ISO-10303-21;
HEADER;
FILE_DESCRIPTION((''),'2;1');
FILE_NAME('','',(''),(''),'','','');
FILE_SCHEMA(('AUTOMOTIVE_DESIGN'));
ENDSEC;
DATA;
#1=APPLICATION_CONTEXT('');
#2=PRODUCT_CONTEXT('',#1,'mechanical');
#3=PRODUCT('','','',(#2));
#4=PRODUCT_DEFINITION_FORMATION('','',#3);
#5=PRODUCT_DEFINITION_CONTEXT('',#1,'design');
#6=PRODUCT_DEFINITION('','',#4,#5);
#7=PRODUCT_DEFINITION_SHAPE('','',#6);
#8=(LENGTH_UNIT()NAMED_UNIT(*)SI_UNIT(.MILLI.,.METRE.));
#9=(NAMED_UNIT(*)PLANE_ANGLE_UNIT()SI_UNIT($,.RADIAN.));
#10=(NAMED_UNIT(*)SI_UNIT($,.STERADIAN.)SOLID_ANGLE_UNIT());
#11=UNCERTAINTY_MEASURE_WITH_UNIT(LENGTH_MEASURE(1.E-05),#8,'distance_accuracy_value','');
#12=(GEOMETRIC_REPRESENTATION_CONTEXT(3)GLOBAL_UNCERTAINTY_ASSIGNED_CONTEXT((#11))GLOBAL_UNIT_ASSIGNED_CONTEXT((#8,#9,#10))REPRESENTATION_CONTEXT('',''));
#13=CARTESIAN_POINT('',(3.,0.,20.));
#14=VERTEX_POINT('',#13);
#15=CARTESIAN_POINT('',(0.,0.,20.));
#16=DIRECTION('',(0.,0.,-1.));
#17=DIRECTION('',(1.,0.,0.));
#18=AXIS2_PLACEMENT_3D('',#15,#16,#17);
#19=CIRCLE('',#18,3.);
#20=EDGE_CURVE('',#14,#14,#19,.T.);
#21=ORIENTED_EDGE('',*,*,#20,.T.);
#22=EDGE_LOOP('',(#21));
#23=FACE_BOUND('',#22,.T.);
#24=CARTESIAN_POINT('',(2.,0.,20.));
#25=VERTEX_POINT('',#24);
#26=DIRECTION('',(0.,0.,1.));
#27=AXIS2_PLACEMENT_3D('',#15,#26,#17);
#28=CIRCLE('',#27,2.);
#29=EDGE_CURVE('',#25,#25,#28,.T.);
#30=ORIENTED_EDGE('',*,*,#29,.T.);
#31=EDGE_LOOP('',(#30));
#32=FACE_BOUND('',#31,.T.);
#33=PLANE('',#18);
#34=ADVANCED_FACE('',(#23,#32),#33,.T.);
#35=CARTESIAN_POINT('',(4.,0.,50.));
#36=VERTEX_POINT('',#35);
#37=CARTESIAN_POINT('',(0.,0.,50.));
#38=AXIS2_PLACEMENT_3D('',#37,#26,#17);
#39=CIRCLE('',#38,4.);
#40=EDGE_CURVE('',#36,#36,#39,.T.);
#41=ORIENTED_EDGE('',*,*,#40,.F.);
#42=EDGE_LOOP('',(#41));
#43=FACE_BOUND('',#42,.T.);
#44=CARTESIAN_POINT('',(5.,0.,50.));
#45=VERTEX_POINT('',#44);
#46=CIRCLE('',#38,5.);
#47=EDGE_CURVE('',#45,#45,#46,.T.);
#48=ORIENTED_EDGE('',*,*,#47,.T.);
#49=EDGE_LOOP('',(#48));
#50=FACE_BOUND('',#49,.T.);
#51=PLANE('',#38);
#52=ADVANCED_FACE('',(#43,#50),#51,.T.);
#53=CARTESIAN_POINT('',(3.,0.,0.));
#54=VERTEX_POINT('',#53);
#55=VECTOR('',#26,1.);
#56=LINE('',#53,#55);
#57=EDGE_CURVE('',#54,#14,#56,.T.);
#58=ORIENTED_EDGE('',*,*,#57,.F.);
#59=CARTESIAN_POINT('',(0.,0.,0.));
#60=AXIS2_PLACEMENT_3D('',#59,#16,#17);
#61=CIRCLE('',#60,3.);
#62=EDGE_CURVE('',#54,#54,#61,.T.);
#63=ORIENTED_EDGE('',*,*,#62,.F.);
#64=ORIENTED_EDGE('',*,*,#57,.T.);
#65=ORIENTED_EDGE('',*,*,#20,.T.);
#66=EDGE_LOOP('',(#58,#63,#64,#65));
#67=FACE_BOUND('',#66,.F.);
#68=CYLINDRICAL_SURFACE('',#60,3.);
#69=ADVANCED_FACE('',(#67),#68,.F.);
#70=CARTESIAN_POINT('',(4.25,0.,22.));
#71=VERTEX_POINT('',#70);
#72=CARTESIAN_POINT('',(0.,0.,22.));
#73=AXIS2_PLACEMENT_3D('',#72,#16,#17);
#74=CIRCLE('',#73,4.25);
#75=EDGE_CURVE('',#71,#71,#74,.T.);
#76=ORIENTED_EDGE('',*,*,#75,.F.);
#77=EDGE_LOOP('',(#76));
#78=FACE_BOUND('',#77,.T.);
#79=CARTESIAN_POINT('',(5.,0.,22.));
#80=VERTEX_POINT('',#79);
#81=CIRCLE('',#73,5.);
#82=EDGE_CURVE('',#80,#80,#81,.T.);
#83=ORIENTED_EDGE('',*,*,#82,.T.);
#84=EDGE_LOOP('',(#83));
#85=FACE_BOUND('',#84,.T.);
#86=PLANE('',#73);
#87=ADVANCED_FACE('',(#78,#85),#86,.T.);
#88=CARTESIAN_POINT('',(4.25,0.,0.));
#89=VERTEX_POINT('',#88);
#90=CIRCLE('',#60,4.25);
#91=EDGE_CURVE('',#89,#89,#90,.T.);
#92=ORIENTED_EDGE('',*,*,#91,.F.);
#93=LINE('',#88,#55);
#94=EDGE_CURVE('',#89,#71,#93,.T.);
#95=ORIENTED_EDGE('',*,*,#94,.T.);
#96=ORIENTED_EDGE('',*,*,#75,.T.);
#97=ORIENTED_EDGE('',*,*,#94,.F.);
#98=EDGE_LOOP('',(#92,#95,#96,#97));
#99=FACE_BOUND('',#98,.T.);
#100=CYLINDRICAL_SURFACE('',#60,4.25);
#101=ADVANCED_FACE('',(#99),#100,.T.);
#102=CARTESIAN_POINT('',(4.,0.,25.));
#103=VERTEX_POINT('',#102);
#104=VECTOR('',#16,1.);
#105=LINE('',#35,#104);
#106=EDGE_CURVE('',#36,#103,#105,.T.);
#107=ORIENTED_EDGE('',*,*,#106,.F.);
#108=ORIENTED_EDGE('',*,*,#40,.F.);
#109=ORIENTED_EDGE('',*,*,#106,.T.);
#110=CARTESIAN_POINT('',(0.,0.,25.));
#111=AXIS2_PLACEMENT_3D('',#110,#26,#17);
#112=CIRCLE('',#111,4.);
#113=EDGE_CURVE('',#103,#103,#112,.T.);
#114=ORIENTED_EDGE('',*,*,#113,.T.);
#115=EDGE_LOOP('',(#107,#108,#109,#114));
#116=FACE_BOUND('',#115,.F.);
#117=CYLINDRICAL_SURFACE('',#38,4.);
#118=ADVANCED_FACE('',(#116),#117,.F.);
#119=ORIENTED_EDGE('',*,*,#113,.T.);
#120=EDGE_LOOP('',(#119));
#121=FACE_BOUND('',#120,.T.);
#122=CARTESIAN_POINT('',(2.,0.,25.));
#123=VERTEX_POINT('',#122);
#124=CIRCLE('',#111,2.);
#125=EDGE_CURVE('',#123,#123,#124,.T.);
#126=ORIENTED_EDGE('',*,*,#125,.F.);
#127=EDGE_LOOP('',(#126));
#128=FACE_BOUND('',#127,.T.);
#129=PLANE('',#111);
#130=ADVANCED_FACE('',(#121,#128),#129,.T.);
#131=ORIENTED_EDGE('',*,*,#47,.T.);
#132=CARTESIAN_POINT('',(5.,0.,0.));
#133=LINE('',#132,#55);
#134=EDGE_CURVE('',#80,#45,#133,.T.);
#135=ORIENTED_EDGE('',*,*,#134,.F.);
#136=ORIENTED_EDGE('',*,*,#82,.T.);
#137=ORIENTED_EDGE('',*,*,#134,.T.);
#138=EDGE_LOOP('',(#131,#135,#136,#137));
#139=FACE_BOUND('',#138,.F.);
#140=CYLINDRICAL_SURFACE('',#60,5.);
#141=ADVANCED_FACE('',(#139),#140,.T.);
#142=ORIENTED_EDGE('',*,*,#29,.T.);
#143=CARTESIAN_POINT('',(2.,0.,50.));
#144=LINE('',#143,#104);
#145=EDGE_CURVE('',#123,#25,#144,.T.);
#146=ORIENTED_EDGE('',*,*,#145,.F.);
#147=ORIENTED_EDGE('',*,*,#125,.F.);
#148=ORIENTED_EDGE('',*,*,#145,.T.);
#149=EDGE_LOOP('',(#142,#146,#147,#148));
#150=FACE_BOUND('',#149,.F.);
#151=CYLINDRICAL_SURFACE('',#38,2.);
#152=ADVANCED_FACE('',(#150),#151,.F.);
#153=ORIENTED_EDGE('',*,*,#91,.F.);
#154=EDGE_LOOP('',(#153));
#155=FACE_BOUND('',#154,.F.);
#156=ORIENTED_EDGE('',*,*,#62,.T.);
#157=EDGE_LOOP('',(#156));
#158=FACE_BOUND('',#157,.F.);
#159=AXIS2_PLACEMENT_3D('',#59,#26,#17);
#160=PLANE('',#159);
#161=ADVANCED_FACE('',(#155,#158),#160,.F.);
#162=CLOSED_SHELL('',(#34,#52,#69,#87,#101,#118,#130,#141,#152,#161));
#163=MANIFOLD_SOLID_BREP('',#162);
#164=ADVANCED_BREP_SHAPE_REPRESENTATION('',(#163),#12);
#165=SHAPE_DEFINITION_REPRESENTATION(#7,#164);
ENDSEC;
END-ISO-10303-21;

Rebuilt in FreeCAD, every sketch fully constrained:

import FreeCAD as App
import Part
import Sketcher

doc = App.newDocument("Part")
body = doc.addObject("PartDesign::Body", "Body")

sketch1 = body.newObject("Sketcher::SketchObject", "Sketch")
sketch1.AttachmentSupport = (doc.getObject("XY_Plane"), [""])
sketch1.MapMode = "FlatFace"
sketch1.addGeometry(Part.Circle(App.Vector(0, 0, 0), App.Vector(0, 0, 1), 5), False)
sketch1.addConstraint([
    Sketcher.Constraint("Coincident", 0, 3, -1, 1),
    Sketcher.Constraint("Diameter", 0, 10.0),
])
pad1 = body.newObject("PartDesign::Pad", "Pad")
pad1.Profile = sketch1
pad1.Length = 50

sketch2 = body.newObject("Sketcher::SketchObject", "Sketch001")
sketch2.AttachmentSupport = (doc.getObject("XY_Plane"), [""])
sketch2.MapMode = "FlatFace"
sketch2.AttachmentOffset = App.Placement(App.Vector(0, 0, 50), App.Rotation())
sketch2.addGeometry(Part.Circle(App.Vector(0, 0, 0), App.Vector(0, 0, 1), 2), False)
sketch2.addConstraint([
    Sketcher.Constraint("Coincident", 0, 3, -1, 1),
    Sketcher.Constraint("Diameter", 0, 4.0),
])
pocket1 = body.newObject("PartDesign::Pocket", "Pocket")
pocket1.Profile = sketch2
pocket1.Type = "ThroughAll"

sketch3 = body.newObject("Sketcher::SketchObject", "Sketch002")
sketch3.AttachmentSupport = (doc.getObject("XY_Plane"), [""])
sketch3.MapMode = "FlatFace"
sketch3.AttachmentOffset = App.Placement(App.Vector(0, 0, 50), App.Rotation())
sketch3.addGeometry(Part.Circle(App.Vector(0, 0, 0), App.Vector(0, 0, 1), 4), False)
sketch3.addConstraint([
    Sketcher.Constraint("Coincident", 0, 3, -1, 1),
    Sketcher.Constraint("Diameter", 0, 8.0),
])
pocket2 = body.newObject("PartDesign::Pocket", "Pocket001")
pocket2.Profile = sketch3
pocket2.Length = 25

sketch4 = body.newObject("Sketcher::SketchObject", "Sketch003")
sketch4.AttachmentSupport = (doc.getObject("XY_Plane"), [""])
sketch4.MapMode = "FlatFace"
sketch4.addGeometry(Part.Circle(App.Vector(0, 0, 0), App.Vector(0, 0, 1), 3), False)
sketch4.addConstraint([
    Sketcher.Constraint("Coincident", 0, 3, -1, 1),
    Sketcher.Constraint("Diameter", 0, 6.0),
])
pocket3 = body.newObject("PartDesign::Pocket", "Pocket002")
pocket3.Profile = sketch4
pocket3.Length = 20
pocket3.Reversed = True

sketch5 = body.newObject("Sketcher::SketchObject", "Sketch004")
sketch5.AttachmentSupport = (doc.getObject("XY_Plane"), [""])
sketch5.MapMode = "FlatFace"
sketch5.addGeometry([
    Part.Circle(App.Vector(0, 0, 0), App.Vector(0, 0, 1), 5),
    Part.Circle(App.Vector(0, 0, 0), App.Vector(0, 0, 1), 4.25),
], False)
sketch5.addConstraint([
    Sketcher.Constraint("Coincident", 0, 3, -1, 1),
    Sketcher.Constraint("Coincident", 1, 3, -1, 1),
    Sketcher.Constraint("Diameter", 0, 10.0),
    Sketcher.Constraint("Diameter", 1, 8.5),
])
pocket4 = body.newObject("PartDesign::Pocket", "Pocket003")
pocket4.Profile = sketch5
pocket4.Length = 22
pocket4.Reversed = True

doc.recompute()
